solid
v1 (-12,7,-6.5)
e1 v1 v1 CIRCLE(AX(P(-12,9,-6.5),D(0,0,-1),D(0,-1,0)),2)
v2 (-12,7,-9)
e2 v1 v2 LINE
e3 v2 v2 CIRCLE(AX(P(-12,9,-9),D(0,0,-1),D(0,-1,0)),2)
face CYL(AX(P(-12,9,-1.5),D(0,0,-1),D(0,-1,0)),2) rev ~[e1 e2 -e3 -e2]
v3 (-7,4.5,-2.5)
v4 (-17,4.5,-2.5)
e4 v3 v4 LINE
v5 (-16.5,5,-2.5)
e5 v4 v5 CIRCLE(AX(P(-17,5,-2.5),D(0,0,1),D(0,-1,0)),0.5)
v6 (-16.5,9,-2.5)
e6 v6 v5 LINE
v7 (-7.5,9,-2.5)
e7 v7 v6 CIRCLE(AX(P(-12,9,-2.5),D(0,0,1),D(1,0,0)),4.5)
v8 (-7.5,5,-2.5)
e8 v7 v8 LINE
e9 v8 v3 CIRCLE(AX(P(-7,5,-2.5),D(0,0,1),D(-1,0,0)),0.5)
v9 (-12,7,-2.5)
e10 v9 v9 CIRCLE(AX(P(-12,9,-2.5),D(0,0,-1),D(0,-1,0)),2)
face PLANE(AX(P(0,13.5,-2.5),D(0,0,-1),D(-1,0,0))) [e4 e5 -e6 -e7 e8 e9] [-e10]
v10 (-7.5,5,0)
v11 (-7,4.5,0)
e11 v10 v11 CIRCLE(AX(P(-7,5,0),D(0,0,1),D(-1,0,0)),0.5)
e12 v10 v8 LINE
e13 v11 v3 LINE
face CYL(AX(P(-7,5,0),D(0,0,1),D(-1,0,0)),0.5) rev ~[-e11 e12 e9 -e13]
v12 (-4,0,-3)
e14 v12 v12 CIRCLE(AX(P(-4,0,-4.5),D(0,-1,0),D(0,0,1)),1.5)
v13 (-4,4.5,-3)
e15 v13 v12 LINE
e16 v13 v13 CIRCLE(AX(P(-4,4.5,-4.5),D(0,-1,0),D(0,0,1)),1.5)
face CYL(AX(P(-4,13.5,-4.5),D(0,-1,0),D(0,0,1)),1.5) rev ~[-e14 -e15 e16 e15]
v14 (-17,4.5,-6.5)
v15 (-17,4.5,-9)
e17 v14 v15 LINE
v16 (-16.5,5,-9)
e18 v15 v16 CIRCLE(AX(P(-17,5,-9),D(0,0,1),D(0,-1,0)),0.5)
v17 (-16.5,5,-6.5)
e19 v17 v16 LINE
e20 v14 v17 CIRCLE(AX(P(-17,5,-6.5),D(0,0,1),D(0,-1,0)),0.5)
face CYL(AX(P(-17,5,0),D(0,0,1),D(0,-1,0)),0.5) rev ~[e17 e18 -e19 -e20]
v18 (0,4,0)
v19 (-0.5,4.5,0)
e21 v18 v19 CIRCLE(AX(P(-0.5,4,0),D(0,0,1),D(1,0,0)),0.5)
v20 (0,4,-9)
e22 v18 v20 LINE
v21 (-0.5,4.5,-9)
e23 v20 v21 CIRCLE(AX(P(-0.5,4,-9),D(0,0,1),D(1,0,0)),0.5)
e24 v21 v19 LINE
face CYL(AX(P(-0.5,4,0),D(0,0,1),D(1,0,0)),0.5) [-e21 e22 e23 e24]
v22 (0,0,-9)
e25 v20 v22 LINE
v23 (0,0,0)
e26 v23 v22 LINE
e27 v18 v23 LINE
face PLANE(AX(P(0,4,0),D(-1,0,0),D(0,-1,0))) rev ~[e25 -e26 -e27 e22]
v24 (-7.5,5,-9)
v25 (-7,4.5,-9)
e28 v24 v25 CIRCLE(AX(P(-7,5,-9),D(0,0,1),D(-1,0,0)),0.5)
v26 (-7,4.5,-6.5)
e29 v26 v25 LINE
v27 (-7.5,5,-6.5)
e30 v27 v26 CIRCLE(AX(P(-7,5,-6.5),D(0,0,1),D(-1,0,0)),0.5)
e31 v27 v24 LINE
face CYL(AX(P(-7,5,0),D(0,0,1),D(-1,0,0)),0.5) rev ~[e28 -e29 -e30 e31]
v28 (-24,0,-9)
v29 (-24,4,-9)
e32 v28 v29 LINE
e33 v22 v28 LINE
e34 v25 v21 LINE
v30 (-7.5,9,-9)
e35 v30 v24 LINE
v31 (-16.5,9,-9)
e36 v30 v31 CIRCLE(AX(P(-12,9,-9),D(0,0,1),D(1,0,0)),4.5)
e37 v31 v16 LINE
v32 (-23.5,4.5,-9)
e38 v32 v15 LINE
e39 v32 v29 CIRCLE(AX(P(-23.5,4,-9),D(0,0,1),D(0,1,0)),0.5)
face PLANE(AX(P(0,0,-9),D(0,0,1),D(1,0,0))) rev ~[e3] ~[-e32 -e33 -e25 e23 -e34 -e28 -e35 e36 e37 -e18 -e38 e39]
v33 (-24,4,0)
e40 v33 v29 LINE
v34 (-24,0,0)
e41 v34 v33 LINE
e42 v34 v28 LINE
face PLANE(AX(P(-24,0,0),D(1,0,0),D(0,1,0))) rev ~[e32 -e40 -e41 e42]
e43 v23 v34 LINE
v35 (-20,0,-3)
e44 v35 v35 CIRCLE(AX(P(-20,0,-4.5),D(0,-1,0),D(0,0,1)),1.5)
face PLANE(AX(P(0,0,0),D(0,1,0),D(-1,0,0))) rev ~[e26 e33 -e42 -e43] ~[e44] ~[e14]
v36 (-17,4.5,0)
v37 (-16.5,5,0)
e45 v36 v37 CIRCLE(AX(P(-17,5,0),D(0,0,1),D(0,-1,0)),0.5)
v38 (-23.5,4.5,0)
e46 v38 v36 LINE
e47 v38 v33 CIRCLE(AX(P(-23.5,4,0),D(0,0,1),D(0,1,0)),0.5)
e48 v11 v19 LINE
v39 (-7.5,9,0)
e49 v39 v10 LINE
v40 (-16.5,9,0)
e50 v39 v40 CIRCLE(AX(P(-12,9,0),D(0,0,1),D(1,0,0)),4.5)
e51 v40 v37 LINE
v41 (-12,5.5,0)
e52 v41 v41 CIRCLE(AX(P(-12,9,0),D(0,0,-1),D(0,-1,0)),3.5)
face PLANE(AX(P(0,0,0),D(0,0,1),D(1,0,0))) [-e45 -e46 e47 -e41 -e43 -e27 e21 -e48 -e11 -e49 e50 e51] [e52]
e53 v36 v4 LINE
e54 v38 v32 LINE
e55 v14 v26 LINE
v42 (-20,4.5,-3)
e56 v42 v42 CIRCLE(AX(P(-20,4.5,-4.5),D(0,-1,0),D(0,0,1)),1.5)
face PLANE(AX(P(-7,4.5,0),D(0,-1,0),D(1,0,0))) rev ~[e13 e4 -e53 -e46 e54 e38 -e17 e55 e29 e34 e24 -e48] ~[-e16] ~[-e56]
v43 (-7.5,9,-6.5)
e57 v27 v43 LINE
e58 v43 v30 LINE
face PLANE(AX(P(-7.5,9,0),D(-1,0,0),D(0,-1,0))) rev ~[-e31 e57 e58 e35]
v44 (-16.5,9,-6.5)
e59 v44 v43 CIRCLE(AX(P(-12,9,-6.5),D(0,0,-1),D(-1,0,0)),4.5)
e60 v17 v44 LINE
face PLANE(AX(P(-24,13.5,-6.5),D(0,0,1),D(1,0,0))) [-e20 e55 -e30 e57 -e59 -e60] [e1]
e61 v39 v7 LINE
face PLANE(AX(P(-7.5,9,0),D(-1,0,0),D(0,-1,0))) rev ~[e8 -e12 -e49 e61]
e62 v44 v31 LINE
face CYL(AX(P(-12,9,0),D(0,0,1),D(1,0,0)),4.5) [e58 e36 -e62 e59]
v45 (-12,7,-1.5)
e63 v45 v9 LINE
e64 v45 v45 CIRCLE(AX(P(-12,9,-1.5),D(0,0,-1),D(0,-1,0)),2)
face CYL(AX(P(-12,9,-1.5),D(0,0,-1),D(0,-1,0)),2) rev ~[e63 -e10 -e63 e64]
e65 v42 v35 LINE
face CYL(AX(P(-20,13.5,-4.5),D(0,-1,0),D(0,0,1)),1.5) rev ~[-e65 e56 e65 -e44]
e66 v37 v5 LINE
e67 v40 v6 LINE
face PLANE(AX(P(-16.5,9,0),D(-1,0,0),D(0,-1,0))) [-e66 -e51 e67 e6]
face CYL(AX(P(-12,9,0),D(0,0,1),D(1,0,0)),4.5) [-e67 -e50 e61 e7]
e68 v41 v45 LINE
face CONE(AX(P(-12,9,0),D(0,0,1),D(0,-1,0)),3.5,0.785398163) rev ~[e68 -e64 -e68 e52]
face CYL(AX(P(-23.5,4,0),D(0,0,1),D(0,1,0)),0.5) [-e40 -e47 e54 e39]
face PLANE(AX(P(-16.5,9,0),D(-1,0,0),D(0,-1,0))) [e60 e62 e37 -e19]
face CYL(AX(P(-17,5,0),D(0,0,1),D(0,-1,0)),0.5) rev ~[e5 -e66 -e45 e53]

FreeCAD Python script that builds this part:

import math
import FreeCAD as App
import Part
import Sketcher

V = App.Vector
Q = App.Units.Quantity

doc = App.newDocument("Part")
params = doc.addObject("Spreadsheet::Sheet", "Params")
for row, (alias, value) in enumerate([
    ("sketch1_radius", "0.5 mm"),
    ("sketch1_radius2", "4.5 mm"),
    ("sketch1_width", "24 mm"),
    ("sketch1_height", "4 mm"),
    ("pad1_length", "9 mm"),
    ("sketch2_diameter", "3 mm"),
    ("sketch2_width", "24 mm"),
    ("pocket1_length", "9 mm"),
    ("sketch3_diameter", "3 mm"),
    ("hole_diameter", "3 mm"),
    ("sketch4_diameter", "4 mm"),
    ("hole2_diameter", "4 mm"),
    ("hole2_csink_diameter", "7 mm"),
], start=1):
    params.set(f"A{row}", alias)
    params.set(f"B{row}", "=" + value)
    params.setAlias(f"B{row}", alias)

body = doc.addObject("PartDesign::Body", "Body")

# Sketch on XY plane
sketch1 = doc.addObject("Sketcher::SketchObject", "Sketch")
body.addObject(sketch1)
sketch1.AttachmentSupport = (doc.XY_Plane, [""])
sketch1.MapMode = "FlatFace"
sketch1.addGeometry([
    Part.LineSegment(V(-24, 0, 0), V(0, 0, 0)),  # 0
    Part.LineSegment(V(0, 0, 0), V(0, 4, 0)),  # 1
    Part.ArcOfCircle(Part.Circle(V(-0.5, 4, 0), V(0, 0, 1), 0.5), math.radians(0), math.radians(90)),  # 2
    Part.LineSegment(V(-0.5, 4.5, 0), V(-7, 4.5, 0)),  # 3
    Part.ArcOfCircle(Part.Circle(V(-7, 5, 0), V(0, 0, 1), 0.5), math.radians(180), math.radians(270)),  # 4
    Part.LineSegment(V(-7.5, 5, 0), V(-7.5, 9, 0)),  # 5
    Part.ArcOfCircle(Part.Circle(V(-12, 9, 0), V(0, 0, 1), 4.5), math.radians(0), math.radians(180)),  # 6
    Part.LineSegment(V(-16.5, 9, 0), V(-16.5, 5, 0)),  # 7
    Part.ArcOfCircle(Part.Circle(V(-17, 5, 0), V(0, 0, 1), 0.5), math.radians(-90), math.radians(0)),  # 8
    Part.LineSegment(V(-17, 4.5, 0), V(-23.5, 4.5, 0)),  # 9
    Part.ArcOfCircle(Part.Circle(V(-23.5, 4, 0), V(0, 0, 1), 0.5), math.radians(90), math.radians(180)),  # 10
    Part.LineSegment(V(-24, 4, 0), V(-24, 0, 0)),  # 11
], False)
sketch1.addConstraint([
    Sketcher.Constraint("Coincident", 0, 2, 1, 1),
    Sketcher.Constraint("Tangent", 1, 2, 2, 1),
    Sketcher.Constraint("Tangent", 2, 2, 3, 1),
    Sketcher.Constraint("Tangent", 3, 2, 4, 2),
    Sketcher.Constraint("Tangent", 4, 1, 5, 1),
    Sketcher.Constraint("Tangent", 5, 2, 6, 1),
    Sketcher.Constraint("Tangent", 6, 2, 7, 1),
    Sketcher.Constraint("Tangent", 7, 2, 8, 2),
    Sketcher.Constraint("Tangent", 8, 1, 9, 1),
    Sketcher.Constraint("Tangent", 9, 2, 10, 1),
    Sketcher.Constraint("Tangent", 10, 2, 11, 1),
    Sketcher.Constraint("Coincident", 11, 2, 0, 1),
    Sketcher.Constraint("Horizontal", 0),
    Sketcher.Constraint("Vertical", 1),
    Sketcher.Constraint("Horizontal", 3),
    Sketcher.Constraint("Vertical", 5),
    Sketcher.Constraint("Vertical", 7),
    Sketcher.Constraint("Horizontal", 9),
    Sketcher.Constraint("Vertical", 11),
    Sketcher.Constraint("Coincident", 0, 2, -1, 1),
    Sketcher.Constraint("Equal", 2, 4),
    Sketcher.Constraint("Equal", 4, 8),
    Sketcher.Constraint("Equal", 8, 10),
    Sketcher.Constraint("Horizontal", 4, 3, 8, 3),
    Sketcher.Constraint("Equal", 3, 9),
    Sketcher.Constraint("Equal", 1, 5),
    Sketcher.Constraint("Radius", 2, Q("0.5 mm")),
    Sketcher.Constraint("Radius", 6, Q("4.5 mm")),
    Sketcher.Constraint("DistanceX", 0, 1, 0, 2, Q("24 mm")),
    Sketcher.Constraint("DistanceY", 1, 1, 1, 2, Q("4 mm")),
])
sketch1.setExpression("Constraints[26]", "Params.sketch1_radius")
sketch1.setExpression("Constraints[27]", "Params.sketch1_radius2")
sketch1.setExpression("Constraints[28]", "Params.sketch1_width")
sketch1.setExpression("Constraints[29]", "Params.sketch1_height")
pad1 = doc.addObject("PartDesign::Pad", "Pad")
body.addObject(pad1)
pad1.Profile = sketch1
pad1.setExpression("Length", "Params.pad1_length")
pad1.Reversed = True

# Sketch on XZ plane
sketch2 = doc.addObject("Sketcher::SketchObject", "Sketch001")
body.addObject(sketch2)
sketch2.AttachmentSupport = (doc.XZ_Plane, [""])
sketch2.MapMode = "FlatFace"
sketch2.AttachmentOffset = App.Placement(V(0, 0, -13.5), App.Rotation())
sketch2.addGeometry([
    Part.LineSegment(V(-24, -6.5, 0), V(-24, -2.5, 0)),  # 0
    Part.LineSegment(V(-24, -2.5, 0), V(0, -2.5, 0)),  # 1
    Part.LineSegment(V(0, -2.5, 0), V(0, -6.5, 0)),  # 2
    Part.LineSegment(V(0, -6.5, 0), V(-24, -6.5, 0)),  # 3
    Part.Circle(V(-4, -4.5, 0), V(0, 0, 1), 1.5),  # 4
    Part.Circle(V(-20, -4.5, 0), V(0, 0, 1), 1.5),  # 5
], False)
sketch2.addConstraint([
    Sketcher.Constraint("Coincident", 0, 2, 1, 1),
    Sketcher.Constraint("Coincident", 1, 2, 2, 1),
    Sketcher.Constraint("Coincident", 2, 2, 3, 1),
    Sketcher.Constraint("Coincident", 3, 2, 0, 1),
    Sketcher.Constraint("Vertical", 0),
    Sketcher.Constraint("Horizontal", 1),
    Sketcher.Constraint("Vertical", 2),
    Sketcher.Constraint("Horizontal", 3),
    Sketcher.Constraint("Equal", 4, 5),
    Sketcher.Constraint("PointOnObject", 1, 2, -2),
    Sketcher.Constraint("Horizontal", 4, 3, 5, 3),
    Sketcher.Constraint("Diameter", 4, Q("3 mm")),
    Sketcher.Constraint("DistanceY", 5, 3, 0, 2, Q("2 mm")),
    Sketcher.Constraint("DistanceY", 2, 2, 4, 3, Q("2 mm")),
    Sketcher.Constraint("DistanceX", 1, 1, 1, 2, Q("24 mm")),
    Sketcher.Constraint("DistanceX", 4, 3, -1, 1, Q("4 mm")),
    Sketcher.Constraint("DistanceX", 5, 3, -1, 1, Q("20 mm")),
    Sketcher.Constraint("DistanceY", 4, 3, -1, 1, Q("4.5 mm")),
])
sketch2.setExpression("Constraints[11]", "Params.sketch2_diameter")
sketch2.setExpression("Constraints[14]", "Params.sketch2_width")
pocket1 = doc.addObject("PartDesign::Pocket", "Pocket")
body.addObject(pocket1)
pocket1.Profile = sketch2
pocket1.setExpression("Length", "Params.pocket1_length")
pocket1.Reversed = True

# Sketch on XZ plane
sketch3 = doc.addObject("Sketcher::SketchObject", "Sketch002")
body.addObject(sketch3)
sketch3.AttachmentSupport = (doc.XZ_Plane, [""])
sketch3.MapMode = "FlatFace"
sketch3.AttachmentOffset = App.Placement(V(0, 0, -13.5), App.Rotation())
sketch3.addGeometry([
    Part.Circle(V(-20, -4.5, 0), V(0, 0, 1), 1.5),
    Part.Circle(V(-4, -4.5, 0), V(0, 0, 1), 1.5),
], False)
sketch3.addConstraint([
    Sketcher.Constraint("Equal", 0, 1),
    Sketcher.Constraint("Horizontal", 0, 3, 1, 3),
    Sketcher.Constraint("Diameter", 0, Q("3 mm")),
    Sketcher.Constraint("DistanceX", 0, 3, -1, 1, Q("20 mm")),
    Sketcher.Constraint("DistanceX", 1, 3, -1, 1, Q("4 mm")),
    Sketcher.Constraint("DistanceY", 0, 3, -1, 1, Q("4.5 mm")),
])
sketch3.setExpression("Constraints[2]", "Params.sketch3_diameter")
doc.recompute()
hole = doc.addObject("PartDesign::Hole", "Hole")
body.addObject(hole)
hole.Profile = sketch3
hole.ThreadType = "None"
hole.setExpression("Diameter", "Params.hole_diameter")
hole.DepthType = "ThroughAll"
hole.Reversed = True

# Sketch on XY plane
sketch4 = doc.addObject("Sketcher::SketchObject", "Sketch003")
body.addObject(sketch4)
sketch4.AttachmentSupport = (doc.XY_Plane, [""])
sketch4.MapMode = "FlatFace"
sketch4.addGeometry(Part.Circle(V(-12, 9, 0), V(0, 0, 1), 2), False)
sketch4.addConstraint([
    Sketcher.Constraint("Diameter", 0, Q("4 mm")),
    Sketcher.Constraint("DistanceX", 0, 3, -1, 1, Q("12 mm")),
    Sketcher.Constraint("DistanceY", -1, 1, 0, 3, Q("9 mm")),
])
sketch4.setExpression("Constraints[0]", "Params.sketch4_diameter")
doc.recompute()
hole2 = doc.addObject("PartDesign::Hole", "Hole001")
body.addObject(hole2)
hole2.Profile = sketch4
hole2.ThreadType = "None"
hole2.setExpression("Diameter", "Params.hole2_diameter")
hole2.DepthType = "ThroughAll"
hole2.HoleCutType = "Countersink"
hole2.setExpression("HoleCutDiameter", "Params.hole2_csink_diameter")
hole2.HoleCutCountersinkAngle = 90

doc.recompute()
